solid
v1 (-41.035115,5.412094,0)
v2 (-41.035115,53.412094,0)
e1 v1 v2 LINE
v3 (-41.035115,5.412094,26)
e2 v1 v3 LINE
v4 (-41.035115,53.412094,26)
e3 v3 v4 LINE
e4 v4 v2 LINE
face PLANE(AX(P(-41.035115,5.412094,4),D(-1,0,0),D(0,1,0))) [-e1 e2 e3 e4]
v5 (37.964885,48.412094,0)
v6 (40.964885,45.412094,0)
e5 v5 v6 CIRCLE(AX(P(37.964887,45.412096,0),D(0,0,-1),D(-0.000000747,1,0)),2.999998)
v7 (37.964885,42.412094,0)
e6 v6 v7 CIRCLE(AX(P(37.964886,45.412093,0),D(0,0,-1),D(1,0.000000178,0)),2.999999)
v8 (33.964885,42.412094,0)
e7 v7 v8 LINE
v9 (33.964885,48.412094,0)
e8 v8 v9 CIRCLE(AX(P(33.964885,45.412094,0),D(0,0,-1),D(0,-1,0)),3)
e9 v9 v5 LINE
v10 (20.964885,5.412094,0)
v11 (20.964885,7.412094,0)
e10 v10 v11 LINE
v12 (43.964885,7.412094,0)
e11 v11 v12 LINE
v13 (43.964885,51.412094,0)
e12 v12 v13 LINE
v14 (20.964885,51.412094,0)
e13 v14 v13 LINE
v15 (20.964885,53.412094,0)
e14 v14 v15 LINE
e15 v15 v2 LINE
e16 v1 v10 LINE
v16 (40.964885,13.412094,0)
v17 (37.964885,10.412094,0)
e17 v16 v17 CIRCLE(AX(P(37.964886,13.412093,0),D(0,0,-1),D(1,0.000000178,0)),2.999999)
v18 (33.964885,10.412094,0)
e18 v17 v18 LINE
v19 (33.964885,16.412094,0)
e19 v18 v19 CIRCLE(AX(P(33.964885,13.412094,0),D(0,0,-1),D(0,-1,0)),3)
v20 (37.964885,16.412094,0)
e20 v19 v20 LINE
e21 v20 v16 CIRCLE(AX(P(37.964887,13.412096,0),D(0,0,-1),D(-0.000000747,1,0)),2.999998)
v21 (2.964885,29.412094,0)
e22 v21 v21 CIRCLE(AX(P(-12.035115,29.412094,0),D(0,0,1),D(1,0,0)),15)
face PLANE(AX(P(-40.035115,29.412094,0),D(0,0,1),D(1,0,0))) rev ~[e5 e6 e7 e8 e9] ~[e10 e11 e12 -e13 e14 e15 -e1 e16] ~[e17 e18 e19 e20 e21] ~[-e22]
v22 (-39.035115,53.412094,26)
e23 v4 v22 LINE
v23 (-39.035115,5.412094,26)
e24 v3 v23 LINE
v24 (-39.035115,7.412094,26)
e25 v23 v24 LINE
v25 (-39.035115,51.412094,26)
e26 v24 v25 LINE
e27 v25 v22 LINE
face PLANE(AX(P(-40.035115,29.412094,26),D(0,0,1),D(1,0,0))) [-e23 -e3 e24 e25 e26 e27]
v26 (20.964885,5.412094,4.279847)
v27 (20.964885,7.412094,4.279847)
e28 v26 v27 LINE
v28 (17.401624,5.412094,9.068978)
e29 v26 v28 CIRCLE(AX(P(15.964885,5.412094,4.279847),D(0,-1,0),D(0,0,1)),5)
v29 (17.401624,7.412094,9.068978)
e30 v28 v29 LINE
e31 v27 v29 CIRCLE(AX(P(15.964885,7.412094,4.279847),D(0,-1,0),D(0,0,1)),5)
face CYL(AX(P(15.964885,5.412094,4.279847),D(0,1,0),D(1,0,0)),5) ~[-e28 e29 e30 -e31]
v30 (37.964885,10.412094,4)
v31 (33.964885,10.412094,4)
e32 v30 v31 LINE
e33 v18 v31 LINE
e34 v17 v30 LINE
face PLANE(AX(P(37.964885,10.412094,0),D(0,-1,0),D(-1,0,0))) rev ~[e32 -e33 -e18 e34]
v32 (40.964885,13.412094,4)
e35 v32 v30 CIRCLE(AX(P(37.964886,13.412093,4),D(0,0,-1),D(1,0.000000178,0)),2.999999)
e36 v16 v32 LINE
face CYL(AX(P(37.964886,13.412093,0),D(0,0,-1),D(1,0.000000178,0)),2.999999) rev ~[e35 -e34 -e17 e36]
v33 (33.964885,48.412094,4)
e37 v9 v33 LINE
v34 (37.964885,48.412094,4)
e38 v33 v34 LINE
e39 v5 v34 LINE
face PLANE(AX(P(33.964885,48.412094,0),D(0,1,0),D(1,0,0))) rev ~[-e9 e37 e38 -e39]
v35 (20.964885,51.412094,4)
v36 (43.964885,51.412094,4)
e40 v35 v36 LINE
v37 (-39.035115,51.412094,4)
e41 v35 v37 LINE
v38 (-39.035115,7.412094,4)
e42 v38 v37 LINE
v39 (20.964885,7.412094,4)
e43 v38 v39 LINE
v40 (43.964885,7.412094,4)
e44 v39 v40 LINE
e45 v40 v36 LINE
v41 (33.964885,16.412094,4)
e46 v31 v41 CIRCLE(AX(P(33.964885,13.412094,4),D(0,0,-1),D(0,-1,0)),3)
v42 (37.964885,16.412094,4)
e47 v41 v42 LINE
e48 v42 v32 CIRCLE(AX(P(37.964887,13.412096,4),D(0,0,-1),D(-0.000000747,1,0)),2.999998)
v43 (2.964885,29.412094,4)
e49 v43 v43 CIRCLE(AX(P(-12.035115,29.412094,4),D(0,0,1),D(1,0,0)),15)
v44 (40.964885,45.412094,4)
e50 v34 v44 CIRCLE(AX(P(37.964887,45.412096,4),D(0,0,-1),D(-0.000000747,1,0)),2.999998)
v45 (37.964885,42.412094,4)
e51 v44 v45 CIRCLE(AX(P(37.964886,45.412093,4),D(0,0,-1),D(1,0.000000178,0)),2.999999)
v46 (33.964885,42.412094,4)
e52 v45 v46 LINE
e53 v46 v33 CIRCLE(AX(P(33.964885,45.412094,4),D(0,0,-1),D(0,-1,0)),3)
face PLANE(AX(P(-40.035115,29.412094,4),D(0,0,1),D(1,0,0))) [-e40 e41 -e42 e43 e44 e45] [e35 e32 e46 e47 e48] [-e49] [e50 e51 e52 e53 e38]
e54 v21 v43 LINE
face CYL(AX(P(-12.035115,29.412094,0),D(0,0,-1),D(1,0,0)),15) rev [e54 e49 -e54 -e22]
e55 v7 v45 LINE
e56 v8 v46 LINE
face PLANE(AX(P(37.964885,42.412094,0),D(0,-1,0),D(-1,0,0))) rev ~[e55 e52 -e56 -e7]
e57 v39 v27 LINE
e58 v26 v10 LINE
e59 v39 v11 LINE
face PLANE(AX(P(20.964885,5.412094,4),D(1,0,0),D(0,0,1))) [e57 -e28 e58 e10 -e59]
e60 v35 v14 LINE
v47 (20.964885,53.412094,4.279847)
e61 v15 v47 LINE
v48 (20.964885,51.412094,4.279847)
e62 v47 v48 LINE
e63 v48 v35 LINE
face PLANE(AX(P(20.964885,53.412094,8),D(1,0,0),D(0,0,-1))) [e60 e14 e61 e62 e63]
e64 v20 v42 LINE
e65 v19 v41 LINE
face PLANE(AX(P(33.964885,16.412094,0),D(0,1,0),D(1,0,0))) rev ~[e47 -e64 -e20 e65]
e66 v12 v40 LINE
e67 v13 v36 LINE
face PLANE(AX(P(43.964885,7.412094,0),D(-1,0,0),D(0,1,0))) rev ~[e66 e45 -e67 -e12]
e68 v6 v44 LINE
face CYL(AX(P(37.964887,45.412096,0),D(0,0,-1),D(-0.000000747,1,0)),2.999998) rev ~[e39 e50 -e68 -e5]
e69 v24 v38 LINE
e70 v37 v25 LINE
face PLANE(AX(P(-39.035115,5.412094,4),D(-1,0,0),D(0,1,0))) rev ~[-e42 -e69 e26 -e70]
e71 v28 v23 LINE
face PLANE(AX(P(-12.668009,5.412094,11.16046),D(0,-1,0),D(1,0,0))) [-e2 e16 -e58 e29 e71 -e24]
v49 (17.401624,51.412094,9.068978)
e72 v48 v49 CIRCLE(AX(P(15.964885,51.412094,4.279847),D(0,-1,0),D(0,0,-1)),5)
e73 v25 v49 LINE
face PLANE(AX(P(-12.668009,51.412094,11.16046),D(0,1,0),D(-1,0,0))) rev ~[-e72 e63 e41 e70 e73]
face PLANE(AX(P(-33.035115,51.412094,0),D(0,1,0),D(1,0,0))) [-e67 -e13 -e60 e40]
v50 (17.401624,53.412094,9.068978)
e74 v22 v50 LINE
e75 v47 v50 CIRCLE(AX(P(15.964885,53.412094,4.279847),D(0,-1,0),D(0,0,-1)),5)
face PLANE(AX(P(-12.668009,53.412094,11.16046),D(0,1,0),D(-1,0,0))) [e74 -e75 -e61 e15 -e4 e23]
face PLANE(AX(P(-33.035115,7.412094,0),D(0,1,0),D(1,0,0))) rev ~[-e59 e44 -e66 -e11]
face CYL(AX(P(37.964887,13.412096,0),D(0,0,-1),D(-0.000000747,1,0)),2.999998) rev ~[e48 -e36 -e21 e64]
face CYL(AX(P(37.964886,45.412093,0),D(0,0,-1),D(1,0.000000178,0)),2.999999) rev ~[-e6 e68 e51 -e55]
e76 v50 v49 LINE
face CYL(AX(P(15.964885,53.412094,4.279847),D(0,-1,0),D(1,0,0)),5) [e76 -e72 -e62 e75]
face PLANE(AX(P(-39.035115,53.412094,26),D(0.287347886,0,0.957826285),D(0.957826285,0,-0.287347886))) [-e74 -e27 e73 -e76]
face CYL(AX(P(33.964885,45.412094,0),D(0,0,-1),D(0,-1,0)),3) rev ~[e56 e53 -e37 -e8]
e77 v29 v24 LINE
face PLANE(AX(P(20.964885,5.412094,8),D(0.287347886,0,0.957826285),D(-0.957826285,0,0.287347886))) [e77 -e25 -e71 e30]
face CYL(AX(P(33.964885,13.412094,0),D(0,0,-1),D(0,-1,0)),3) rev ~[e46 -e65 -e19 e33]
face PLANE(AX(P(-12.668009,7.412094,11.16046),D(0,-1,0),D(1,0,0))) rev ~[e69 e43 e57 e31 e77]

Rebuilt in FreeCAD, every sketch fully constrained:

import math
import FreeCAD as App
import Part
import Sketcher
from FreeCAD import Vector


def edges_at(feature, points):
    """Names of the edges that pass closest to the given points."""
    edges = feature.Shape.Edges
    near = lambda p: min(range(len(edges)), key=lambda i: edges[i].distToShape(Part.Vertex(*p))[0])
    return sorted({f"Edge{near(p) + 1}" for p in points})


def add_polygon(sketch, points):
    """Adds a closed chain of lines whose ends are joined by coincident constraints."""
    first, n = sketch.GeometryCount, len(points)
    for a, b in zip(points, points[1:] + points[:1]):
        sketch.addGeometry(Part.LineSegment(App.Vector(*a, 0), App.Vector(*b, 0)), False)
    for i in range(n):
        sketch.addConstraint(Sketcher.Constraint("Coincident", first + i, 2, first + (i + 1) % n, 1))

doc = App.newDocument("Part")
params = doc.addObject("Spreadsheet::Sheet", "Params")
for row, (alias, value) in enumerate([
    ("sketch1_diameter", "30 mm"),
    ("sketch1_radius", "2.999999 mm"),
    ("sketch1_width", "77 mm"),
    ("sketch1_width2", "4 mm"),
    ("sketch1_height", "44 mm"),
    ("pad1_length", "4 mm"),
    ("sketch2_width", "54 mm"),
    ("sketch2_width2", "60 mm"),
    ("sketch2_height", "2 mm"),
    ("sketch2_height2", "48 mm"),
    ("pad2_length", "4 mm"),
    ("sketch3_width", "2 mm"),
    ("sketch3_height", "48 mm"),
    ("pad3_length", "4 mm"),
    ("sketch4_width", "2 mm"),
    ("sketch4_height", "48 mm"),
    ("pad4_length", "22 mm"),
    ("sketch5_width", "60 mm"),
    ("sketch5_height", "4 mm"),
    ("sketch5_height2", "22 mm"),
    ("pad5_length", "2 mm"),
    ("sketch6_width", "60 mm"),
    ("sketch6_height", "4 mm"),
    ("sketch6_height2", "22 mm"),
    ("pad6_length", "2 mm"),
    ("fillet_radius", "5 mm"),
    ("fillet2_radius", "5 mm"),
], start=1):
    params.set(f"A{row}", alias)
    params.set(f"B{row}", "=" + value)
    params.setAlias(f"B{row}", alias)

body = doc.addObject("PartDesign::Body", "Body")

# Sketch on XY plane
sketch1 = body.newObject("Sketcher::SketchObject", "Sketch")
sketch1.AttachmentSupport = (doc.getObject("XY_Plane"), [""])
sketch1.MapMode = "FlatFace"
add_polygon(sketch1, [(-33, 51.4), (-33, 7.4), (44, 7.4), (44, 51.4)])  # lines 0-3
sketch1.addGeometry(Part.Circle(Vector(-12, 29.4, 0), Vector(0, 0, 1), 15), False)  # 4
sketch1.addGeometry(Part.LineSegment(Vector(34, 16.4, 0), Vector(38, 16.4, 0)), False)  # 5
sketch1.addGeometry(Part.ArcOfCircle(Part.Circle(Vector(38, 13.4, 0), Vector(0, 0, 1), 3), math.radians(0), math.radians(90)), False)  # 6
sketch1.addGeometry(Part.ArcOfCircle(Part.Circle(Vector(38, 13.4, 0), Vector(0, 0, 1), 3), math.radians(-90), math.radians(0)), False)  # 7
sketch1.addGeometry(Part.LineSegment(Vector(38, 10.4, 0), Vector(34, 10.4, 0)), False)  # 8
sketch1.addGeometry(Part.ArcOfCircle(Part.Circle(Vector(34, 13.4, 0), Vector(0, 0, 1), 3), math.radians(90), math.radians(270)), False)  # 9
sketch1.addGeometry(Part.LineSegment(Vector(34, 48.4, 0), Vector(38, 48.4, 0)), False)  # 10
sketch1.addGeometry(Part.ArcOfCircle(Part.Circle(Vector(38, 45.4, 0), Vector(0, 0, 1), 3), math.radians(0), math.radians(90)), False)  # 11
sketch1.addGeometry(Part.ArcOfCircle(Part.Circle(Vector(38, 45.4, 0), Vector(0, 0, 1), 3), math.radians(-90), math.radians(0)), False)  # 12
sketch1.addGeometry(Part.LineSegment(Vector(38, 42.4, 0), Vector(34, 42.4, 0)), False)  # 13
sketch1.addGeometry(Part.ArcOfCircle(Part.Circle(Vector(34, 45.4, 0), Vector(0, 0, 1), 3), math.radians(90), math.radians(270)), False)  # 14
sketch1.addConstraint(Sketcher.Constraint("Tangent", 5, 2, 6, 2))
sketch1.addConstraint(Sketcher.Constraint("Tangent", 6, 1, 7, 2))
sketch1.addConstraint(Sketcher.Constraint("Tangent", 7, 1, 8, 1))
sketch1.addConstraint(Sketcher.Constraint("Tangent", 8, 2, 9, 2))
sketch1.addConstraint(Sketcher.Constraint("Tangent", 9, 1, 5, 1))
sketch1.addConstraint(Sketcher.Constraint("Tangent", 10, 2, 11, 2))
sketch1.addConstraint(Sketcher.Constraint("Tangent", 11, 1, 12, 2))
sketch1.addConstraint(Sketcher.Constraint("Tangent", 12, 1, 13, 1))
sketch1.addConstraint(Sketcher.Constraint("Tangent", 13, 2, 14, 2))
sketch1.addConstraint(Sketcher.Constraint("Tangent", 14, 1, 10, 1))
sketch1.addConstraint(Sketcher.Constraint("Vertical", 0))
sketch1.addConstraint(Sketcher.Constraint("Horizontal", 1))
sketch1.addConstraint(Sketcher.Constraint("Vertical", 2))
sketch1.addConstraint(Sketcher.Constraint("Horizontal", 3))
sketch1.addConstraint(Sketcher.Constraint("Horizontal", 5))
sketch1.addConstraint(Sketcher.Constraint("Horizontal", 8))
sketch1.addConstraint(Sketcher.Constraint("Horizontal", 10))
sketch1.addConstraint(Sketcher.Constraint("Horizontal", 13))
sketch1.addConstraint(Sketcher.Constraint("Equal", 6, 7))
sketch1.addConstraint(Sketcher.Constraint("Equal", 7, 11))
sketch1.addConstraint(Sketcher.Constraint("Equal", 11, 12))
sketch1.addConstraint(Sketcher.Constraint("Horizontal", 9, 3, 6, 1))
sketch1.addConstraint(Sketcher.Constraint("Horizontal", 14, 3, 11, 1))
sketch1.addConstraint(Sketcher.Constraint("Vertical", 7, 3, 11, 3))
sketch1.addConstraint(Sketcher.Constraint("Vertical", 9, 3, 14, 3))
sketch1.addConstraint(Sketcher.Constraint("Diameter", 4, 30.0))
sketch1.addConstraint(Sketcher.Constraint("Radius", 7, 2.999999))
sketch1.addConstraint(Sketcher.Constraint("DistanceX", 1, 1, 1, 2, 77.0))
sketch1.addConstraint(Sketcher.Constraint("DistanceX", 5, 1, 5, 2, 4.0))
sketch1.addConstraint(Sketcher.Constraint("DistanceY", 0, 2, 0, 1, 44.0))
sketch1.addConstraint(Sketcher.Constraint("DistanceX", 4, 3, 7, 3, 50.000001))
sketch1.addConstraint(Sketcher.Constraint("DistanceY", 7, 3, 4, 3, 16.000001))
sketch1.addConstraint(Sketcher.Constraint("DistanceY", 6, 3, 11, 3, 32.0))
sketch1.addConstraint(Sketcher.Constraint("DistanceX", 0, 2, 4, 3, 21.0))
sketch1.addConstraint(Sketcher.Constraint("DistanceY", 0, 2, 4, 3, 22.0))
sketch1.addConstraint(Sketcher.Constraint("DistanceX", 4, 3, -1, 1, 12.035115))
sketch1.addConstraint(Sketcher.Constraint("DistanceY", -1, 1, 4, 3, 29.412094))
sketch1.setExpression("Constraints[29]", "Params.sketch1_diameter")
sketch1.setExpression("Constraints[30]", "Params.sketch1_radius")
sketch1.setExpression("Constraints[31]", "Params.sketch1_width")
sketch1.setExpression("Constraints[32]", "Params.sketch1_width2")
sketch1.setExpression("Constraints[33]", "Params.sketch1_height")
pad1 = body.newObject("PartDesign::Pad", "Pad")
pad1.Profile = sketch1
pad1.setExpression("Length", "Params.pad1_length")
body2 = doc.addObject("PartDesign::Body", "Body001")

# Sketch on XY plane
sketch2 = body2.newObject("Sketcher::SketchObject", "Sketch001")
sketch2.AttachmentSupport = (doc.getObject("XY_Plane001"), [""])
sketch2.MapMode = "FlatFace"
sketch2.AttachmentOffset = App.Placement(Vector(0, 0, 4), App.Rotation())
add_polygon(sketch2, [(-33, 51.4), (21, 51.4), (21, 53.4), (-39, 53.4), (-39, 5.4), (21, 5.4), (21, 7.4), (-33, 7.4)])  # lines 0-7
sketch2.addConstraint(Sketcher.Constraint("Horizontal", 0))
sketch2.addConstraint(Sketcher.Constraint("Vertical", 1))
sketch2.addConstraint(Sketcher.Constraint("Horizontal", 2))
sketch2.addConstraint(Sketcher.Constraint("Vertical", 3))
sketch2.addConstraint(Sketcher.Constraint("Horizontal", 4))
sketch2.addConstraint(Sketcher.Constraint("Vertical", 5))
sketch2.addConstraint(Sketcher.Constraint("Horizontal", 6))
sketch2.addConstraint(Sketcher.Constraint("Vertical", 7))
sketch2.addConstraint(Sketcher.Constraint("Vertical", 1, 2, 4, 2))
sketch2.addConstraint(Sketcher.Constraint("Equal", 1, 5))
sketch2.addConstraint(Sketcher.Constraint("DistanceX", 0, 1, 0, 2, 54.0))
sketch2.addConstraint(Sketcher.Constraint("DistanceX", 2, 2, 2, 1, 60.0))
sketch2.addConstraint(Sketcher.Constraint("DistanceY", 1, 1, 1, 2, 2.0))
sketch2.addConstraint(Sketcher.Constraint("DistanceY", 3, 2, 3, 1, 48.0))
sketch2.addConstraint(Sketcher.Constraint("DistanceX", -1, 1, 0, 2, 20.964885))
sketch2.addConstraint(Sketcher.Constraint("DistanceY", -1, 1, 0, 2, 51.412094))
sketch2.setExpression("Constraints[18]", "Params.sketch2_width")
sketch2.setExpression("Constraints[19]", "Params.sketch2_width2")
sketch2.setExpression("Constraints[20]", "Params.sketch2_height")
sketch2.setExpression("Constraints[21]", "Params.sketch2_height2")
pad2 = body2.newObject("PartDesign::Pad", "Pad001")
pad2.Profile = sketch2
pad2.setExpression("Length", "Params.pad2_length")
pad2.Reversed = True

# Sketch on XY plane
sketch3 = body2.newObject("Sketcher::SketchObject", "Sketch002")
sketch3.AttachmentSupport = (doc.getObject("XY_Plane001"), [""])
sketch3.MapMode = "FlatFace"
sketch3.AttachmentOffset = App.Placement(Vector(0, 0, 4), App.Rotation())
add_polygon(sketch3, [(-41, 53.4), (-41, 5.4), (-39, 5.4), (-39, 53.4)])  # lines 0-3
sketch3.addConstraint(Sketcher.Constraint("Vertical", 0))
sketch3.addConstraint(Sketcher.Constraint("Horizontal", 1))
sketch3.addConstraint(Sketcher.Constraint("Vertical", 2))
sketch3.addConstraint(Sketcher.Constraint("Horizontal", 3))
sketch3.addConstraint(Sketcher.Constraint("DistanceX", 1, 1, 1, 2, 2.0))
sketch3.addConstraint(Sketcher.Constraint("DistanceY", 0, 2, 0, 1, 48.0))
sketch3.addConstraint(Sketcher.Constraint("DistanceX", 0, 2, -1, 1, 41.035115))
sketch3.addConstraint(Sketcher.Constraint("DistanceY", -1, 1, 0, 2, 5.412094))
sketch3.setExpression("Constraints[8]", "Params.sketch3_width")
sketch3.setExpression("Constraints[9]", "Params.sketch3_height")
pad3 = body2.newObject("PartDesign::Pad", "Pad002")
pad3.Profile = sketch3
pad3.setExpression("Length", "Params.pad3_length")
pad3.Reversed = True

# Sketch on XY plane
sketch4 = body2.newObject("Sketcher::SketchObject", "Sketch003")
sketch4.AttachmentSupport = (doc.getObject("XY_Plane001"), [""])
sketch4.MapMode = "FlatFace"
sketch4.AttachmentOffset = App.Placement(Vector(0, 0, 4), App.Rotation())
add_polygon(sketch4, [(-41, 53.4), (-41, 5.4), (-39, 5.4), (-39, 53.4)])  # lines 0-3
sketch4.addConstraint(Sketcher.Constraint("Vertical", 0))
sketch4.addConstraint(Sketcher.Constraint("Horizontal", 1))
sketch4.addConstraint(Sketcher.Constraint("Vertical", 2))
sketch4.addConstraint(Sketcher.Constraint("Horizontal", 3))
sketch4.addConstraint(Sketcher.Constraint("DistanceX", 1, 1, 1, 2, 2.0))
sketch4.addConstraint(Sketcher.Constraint("DistanceY", 0, 2, 0, 1, 48.0))
sketch4.addConstraint(Sketcher.Constraint("DistanceX", 0, 2, -1, 1, 41.035115))
sketch4.addConstraint(Sketcher.Constraint("DistanceY", -1, 1, 0, 2, 5.412094))
sketch4.setExpression("Constraints[8]", "Params.sketch4_width")
sketch4.setExpression("Constraints[9]", "Params.sketch4_height")
pad4 = body2.newObject("PartDesign::Pad", "Pad003")
pad4.Profile = sketch4
pad4.setExpression("Length", "Params.pad4_length")
doc.recompute()

boolean = body.newObject("PartDesign::Boolean", "Boolean")
boolean.Type = "Fuse"
boolean.addObjects([body2])

# Sketch on XZ plane
sketch5 = body.newObject("Sketcher::SketchObject", "Sketch004")
sketch5.AttachmentSupport = (doc.getObject("XZ_Plane"), [""])
sketch5.MapMode = "FlatFace"
sketch5.AttachmentOffset = App.Placement(Vector(0, 0, -5.412094), App.Rotation())
add_polygon(sketch5, [(-39, 4), (21, 4), (21, 8), (-39, 26)])  # lines 0-3
sketch5.addConstraint(Sketcher.Constraint("Horizontal", 0))
sketch5.addConstraint(Sketcher.Constraint("Vertical", 1))
sketch5.addConstraint(Sketcher.Constraint("Vertical", 3))
sketch5.addConstraint(Sketcher.Constraint("DistanceX", 0, 1, 0, 2, 60.0))
sketch5.addConstraint(Sketcher.Constraint("DistanceY", 1, 1, 1, 2, 4.0))
sketch5.addConstraint(Sketcher.Constraint("DistanceY", 3, 2, 3, 1, 22.0))
sketch5.addConstraint(Sketcher.Constraint("DistanceY", -1, 1, 0, 2, 4.0))
sketch5.addConstraint(Sketcher.Constraint("DistanceX", -1, 1, 0, 2, 20.964885))
sketch5.setExpression("Constraints[7]", "Params.sketch5_width")
sketch5.setExpression("Constraints[8]", "Params.sketch5_height")
sketch5.setExpression("Constraints[9]", "Params.sketch5_height2")
pad5 = body.newObject("PartDesign::Pad", "Pad004")
pad5.Profile = sketch5
pad5.setExpression("Length", "Params.pad5_length")
pad5.Reversed = True

# Sketch on XZ plane
sketch6 = body.newObject("Sketcher::SketchObject", "Sketch005")
sketch6.AttachmentSupport = (doc.getObject("XZ_Plane"), [""])
sketch6.MapMode = "FlatFace"
sketch6.AttachmentOffset = App.Placement(Vector(0, 0, -53.412094), App.Rotation())
add_polygon(sketch6, [(21, 8), (21, 4), (-39, 4), (-39, 26)])  # lines 0-3
sketch6.addConstraint(Sketcher.Constraint("Vertical", 0))
sketch6.addConstraint(Sketcher.Constraint("Horizontal", 1))
sketch6.addConstraint(Sketcher.Constraint("Vertical", 2))
sketch6.addConstraint(Sketcher.Constraint("DistanceX", 1, 2, 1, 1, 60.0))
sketch6.addConstraint(Sketcher.Constraint("DistanceY", 0, 2, 0, 1, 4.0))
sketch6.addConstraint(Sketcher.Constraint("DistanceY", 2, 1, 2, 2, 22.0))
sketch6.addConstraint(Sketcher.Constraint("DistanceY", -1, 1, 0, 2, 4.0))
sketch6.addConstraint(Sketcher.Constraint("DistanceX", -1, 1, 0, 2, 20.964885))
sketch6.setExpression("Constraints[7]", "Params.sketch6_width")
sketch6.setExpression("Constraints[8]", "Params.sketch6_height")
sketch6.setExpression("Constraints[9]", "Params.sketch6_height2")
pad6 = body.newObject("PartDesign::Pad", "Pad005")
pad6.Profile = sketch6
pad6.setExpression("Length", "Params.pad6_length")
doc.recompute()

fillet = body.newObject("PartDesign::Fillet", "Fillet")
fillet.Base = (pad6, edges_at(pad6, [(20.965, 52.412, 8)]))
fillet.setExpression("Radius", "Params.fillet_radius")
doc.recompute()

fillet2 = body.newObject("PartDesign::Fillet", "Fillet001")
fillet2.Base = (fillet, edges_at(fillet, [(20.965, 6.412, 8)]))
fillet2.setExpression("Radius", "Params.fillet2_radius")

doc.recompute()
